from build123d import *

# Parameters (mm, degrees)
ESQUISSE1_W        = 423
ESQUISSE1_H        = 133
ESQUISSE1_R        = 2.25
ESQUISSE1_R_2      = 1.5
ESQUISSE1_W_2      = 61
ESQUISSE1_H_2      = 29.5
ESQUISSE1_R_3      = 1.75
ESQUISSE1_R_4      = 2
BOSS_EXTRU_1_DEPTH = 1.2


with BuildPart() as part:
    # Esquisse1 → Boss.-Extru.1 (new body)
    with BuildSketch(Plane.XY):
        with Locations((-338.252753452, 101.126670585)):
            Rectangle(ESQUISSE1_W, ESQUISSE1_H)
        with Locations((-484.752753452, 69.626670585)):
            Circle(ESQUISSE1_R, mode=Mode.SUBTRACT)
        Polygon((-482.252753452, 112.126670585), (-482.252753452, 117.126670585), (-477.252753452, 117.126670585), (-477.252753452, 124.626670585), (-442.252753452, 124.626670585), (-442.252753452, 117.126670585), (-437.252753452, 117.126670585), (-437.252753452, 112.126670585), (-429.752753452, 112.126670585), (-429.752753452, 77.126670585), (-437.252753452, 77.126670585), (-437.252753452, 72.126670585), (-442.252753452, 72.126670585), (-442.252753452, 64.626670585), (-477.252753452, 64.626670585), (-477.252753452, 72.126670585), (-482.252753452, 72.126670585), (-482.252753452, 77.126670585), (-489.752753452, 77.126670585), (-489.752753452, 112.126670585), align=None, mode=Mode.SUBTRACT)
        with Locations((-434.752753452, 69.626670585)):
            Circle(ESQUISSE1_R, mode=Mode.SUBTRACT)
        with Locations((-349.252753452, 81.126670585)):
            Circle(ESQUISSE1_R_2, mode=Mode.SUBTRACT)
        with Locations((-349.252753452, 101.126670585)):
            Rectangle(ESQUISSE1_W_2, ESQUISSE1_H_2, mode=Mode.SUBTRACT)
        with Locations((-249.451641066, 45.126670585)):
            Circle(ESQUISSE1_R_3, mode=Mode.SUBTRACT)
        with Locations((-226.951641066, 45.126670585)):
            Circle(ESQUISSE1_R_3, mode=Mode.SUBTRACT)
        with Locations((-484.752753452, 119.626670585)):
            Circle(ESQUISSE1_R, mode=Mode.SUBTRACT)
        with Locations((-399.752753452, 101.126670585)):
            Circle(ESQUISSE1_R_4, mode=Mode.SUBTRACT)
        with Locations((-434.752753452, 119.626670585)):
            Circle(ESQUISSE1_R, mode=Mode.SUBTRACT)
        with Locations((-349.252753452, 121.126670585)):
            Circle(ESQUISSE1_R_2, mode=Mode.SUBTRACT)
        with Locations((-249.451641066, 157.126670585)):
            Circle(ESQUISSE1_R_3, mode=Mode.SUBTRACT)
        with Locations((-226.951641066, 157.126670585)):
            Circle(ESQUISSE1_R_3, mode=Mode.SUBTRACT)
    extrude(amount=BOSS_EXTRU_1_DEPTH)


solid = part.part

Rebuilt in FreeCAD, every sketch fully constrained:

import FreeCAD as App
import Part
import Sketcher

V = App.Vector

doc = App.newDocument("Part")
body = doc.addObject("PartDesign::Body", "Body")

# Sketch on XY plane
sketch1 = body.newObject("Sketcher::SketchObject", "Sketch")
sketch1.AttachmentSupport = (doc.getObject("XY_Plane"), [""])
sketch1.MapMode = "FlatFace"
sketch1.addGeometry([
    Part.LineSegment(V(-549.8, 167.6, 0), V(-549.8, 34.6, 0)),  # 0
    Part.LineSegment(V(-549.8, 34.6, 0), V(-126.8, 34.6, 0)),  # 1
    Part.LineSegment(V(-126.8, 34.6, 0), V(-126.8, 167.6, 0)),  # 2
    Part.LineSegment(V(-126.8, 167.6, 0), V(-549.8, 167.6, 0)),  # 3
    Part.Circle(V(-484.8, 69.6, 0), V(0, 0, 1), 2.2),  # 4
    Part.Circle(V(-434.8, 69.6, 0), V(0, 0, 1), 2.2),  # 5
    Part.LineSegment(V(-489.8, 112.1, 0), V(-482.3, 112.1, 0)),  # 6
    Part.LineSegment(V(-482.3, 112.1, 0), V(-482.3, 117.1, 0)),  # 7
    Part.LineSegment(V(-482.3, 117.1, 0), V(-477.3, 117.1, 0)),  # 8
    Part.LineSegment(V(-477.3, 117.1, 0), V(-477.3, 124.6, 0)),  # 9
    Part.LineSegment(V(-477.3, 124.6, 0), V(-442.3, 124.6, 0)),  # 10
    Part.LineSegment(V(-442.3, 124.6, 0), V(-442.3, 117.1, 0)),  # 11
    Part.LineSegment(V(-442.3, 117.1, 0), V(-437.3, 117.1, 0)),  # 12
    Part.LineSegment(V(-437.3, 117.1, 0), V(-437.3, 112.1, 0)),  # 13
    Part.LineSegment(V(-437.3, 112.1, 0), V(-429.8, 112.1, 0)),  # 14
    Part.LineSegment(V(-429.8, 112.1, 0), V(-429.8, 77.1, 0)),  # 15
    Part.LineSegment(V(-429.8, 77.1, 0), V(-437.3, 77.1, 0)),  # 16
    Part.LineSegment(V(-437.3, 77.1, 0), V(-437.3, 72.1, 0)),  # 17
    Part.LineSegment(V(-437.3, 72.1, 0), V(-442.3, 72.1, 0)),  # 18
    Part.LineSegment(V(-442.3, 72.1, 0), V(-442.3, 64.6, 0)),  # 19
    Part.LineSegment(V(-442.3, 64.6, 0), V(-477.3, 64.6, 0)),  # 20
    Part.LineSegment(V(-477.3, 64.6, 0), V(-477.3, 72.1, 0)),  # 21
    Part.LineSegment(V(-477.3, 72.1, 0), V(-482.3, 72.1, 0)),  # 22
    Part.LineSegment(V(-482.3, 72.1, 0), V(-482.3, 77.1, 0)),  # 23
    Part.LineSegment(V(-482.3, 77.1, 0), V(-489.8, 77.1, 0)),  # 24
    Part.LineSegment(V(-489.8, 77.1, 0), V(-489.8, 112.1, 0)),  # 25
    Part.Circle(V(-249.5, 45.1, 0), V(0, 0, 1), 1.8),  # 26
    Part.Circle(V(-227, 45.1, 0), V(0, 0, 1), 1.8),  # 27
    Part.Circle(V(-349.3, 81.1, 0), V(0, 0, 1), 1.5),  # 28
    Part.Circle(V(-484.8, 119.6, 0), V(0, 0, 1), 2.2),  # 29
    Part.Circle(V(-434.8, 119.6, 0), V(0, 0, 1), 2.2),  # 30
    Part.Circle(V(-399.8, 101.1, 0), V(0, 0, 1), 2),  # 31
    Part.LineSegment(V(-318.8, 86.4, 0), V(-379.8, 86.4, 0)),  # 32
    Part.LineSegment(V(-379.8, 86.4, 0), V(-379.8, 115.9, 0)),  # 33
    Part.LineSegment(V(-379.8, 115.9, 0), V(-318.8, 115.9, 0)),  # 34
    Part.LineSegment(V(-318.8, 115.9, 0), V(-318.8, 86.4, 0)),  # 35
    Part.Circle(V(-349.3, 121.1, 0), V(0, 0, 1), 1.5),  # 36
    Part.Circle(V(-249.5, 157.1, 0), V(0, 0, 1), 1.8),  # 37
    Part.Circle(V(-227, 157.1, 0), V(0, 0, 1), 1.8),  # 38
], False)
sketch1.addConstraint([
    Sketcher.Constraint("Coincident", 0, 2, 1, 1),
    Sketcher.Constraint("Coincident", 1, 2, 2, 1),
    Sketcher.Constraint("Coincident", 2, 2, 3, 1),
    Sketcher.Constraint("Coincident", 3, 2, 0, 1),
    Sketcher.Constraint("Coincident", 6, 2, 7, 1),
    Sketcher.Constraint("Coincident", 7, 2, 8, 1),
    Sketcher.Constraint("Coincident", 8, 2, 9, 1),
    Sketcher.Constraint("Coincident", 9, 2, 10, 1),
    Sketcher.Constraint("Coincident", 10, 2, 11, 1),
    Sketcher.Constraint("Coincident", 11, 2, 12, 1),
    Sketcher.Constraint("Coincident", 12, 2, 13, 1),
    Sketcher.Constraint("Coincident", 13, 2, 14, 1),
    Sketcher.Constraint("Coincident", 14, 2, 15, 1),
    Sketcher.Constraint("Coincident", 15, 2, 16, 1),
    Sketcher.Constraint("Coincident", 16, 2, 17, 1),
    Sketcher.Constraint("Coincident", 17, 2, 18, 1),
    Sketcher.Constraint("Coincident", 18, 2, 19, 1),
    Sketcher.Constraint("Coincident", 19, 2, 20, 1),
    Sketcher.Constraint("Coincident", 20, 2, 21, 1),
    Sketcher.Constraint("Coincident", 21, 2, 22, 1),
    Sketcher.Constraint("Coincident", 22, 2, 23, 1),
    Sketcher.Constraint("Coincident", 23, 2, 24, 1),
    Sketcher.Constraint("Coincident", 24, 2, 25, 1),
    Sketcher.Constraint("Coincident", 25, 2, 6, 1),
    Sketcher.Constraint("Coincident", 32, 2, 33, 1),
    Sketcher.Constraint("Coincident", 33, 2, 34, 1),
    Sketcher.Constraint("Coincident", 34, 2, 35, 1),
    Sketcher.Constraint("Coincident", 35, 2, 32, 1),
    Sketcher.Constraint("Vertical", 0),
    Sketcher.Constraint("Horizontal", 1),
    Sketcher.Constraint("Vertical", 2),
    Sketcher.Constraint("Horizontal", 3),
    Sketcher.Constraint("Horizontal", 6),
    Sketcher.Constraint("Vertical", 7),
    Sketcher.Constraint("Horizontal", 8),
    Sketcher.Constraint("Vertical", 9),
    Sketcher.Constraint("Horizontal", 10),
    Sketcher.Constraint("Vertical", 11),
    Sketcher.Constraint("Horizontal", 12),
    Sketcher.Constraint("Vertical", 13),
    Sketcher.Constraint("Horizontal", 14),
    Sketcher.Constraint("Vertical", 15),
    Sketcher.Constraint("Horizontal", 16),
    Sketcher.Constraint("Vertical", 17),
    Sketcher.Constraint("Horizontal", 18),
    Sketcher.Constraint("Vertical", 19),
    Sketcher.Constraint("Horizontal", 20),
    Sketcher.Constraint("Vertical", 21),
    Sketcher.Constraint("Horizontal", 22),
    Sketcher.Constraint("Vertical", 23),
    Sketcher.Constraint("Horizontal", 24),
    Sketcher.Constraint("Vertical", 25),
    Sketcher.Constraint("Horizontal", 32),
    Sketcher.Constraint("Vertical", 33),
    Sketcher.Constraint("Horizontal", 34),
    Sketcher.Constraint("Vertical", 35),
    Sketcher.Constraint("Equal", 4, 5),
    Sketcher.Constraint("Equal", 26, 27),
    Sketcher.Constraint("Equal", 5, 29),
    Sketcher.Constraint("Equal", 29, 30),
    Sketcher.Constraint("Equal", 28, 36),
    Sketcher.Constraint("Equal", 27, 37),
    Sketcher.Constraint("Equal", 37, 38),
    Sketcher.Constraint("Horizontal", 4, 3, 5, 3),
    Sketcher.Constraint("Horizontal", 26, 3, 27, 3),
    Sketcher.Constraint("Horizontal", 29, 3, 30, 3),
    Sketcher.Constraint("Horizontal", 37, 3, 38, 3),
    Sketcher.Constraint("Horizontal", 8, 2, 11, 2),
    Sketcher.Constraint("Horizontal", 6, 2, 13, 2),
    Sketcher.Constraint("Horizontal", 18, 2, 21, 2),
    Sketcher.Constraint("Horizontal", 16, 2, 23, 2),
    Sketcher.Constraint("Vertical", 4, 3, 29, 3),
    Sketcher.Constraint("Vertical", 5, 3, 30, 3),
    Sketcher.Constraint("Vertical", 28, 3, 36, 3),
    Sketcher.Constraint("Vertical", 26, 3, 37, 3),
    Sketcher.Constraint("Vertical", 27, 3, 38, 3),
    Sketcher.Constraint("Vertical", 13, 2, 16, 2),
    Sketcher.Constraint("Vertical", 11, 2, 18, 2),
    Sketcher.Constraint("Vertical", 9, 2, 20, 2),
    Sketcher.Constraint("Vertical", 7, 2, 22, 2),
    Sketcher.Constraint("Equal", 8, 12),
    Sketcher.Constraint("Equal", 6, 14),
    Sketcher.Constraint("Equal", 22, 7),
    Sketcher.Constraint("Equal", 24, 9),
    Sketcher.Constraint("Equal", 20, 15),
    Sketcher.Constraint("Equal", 13, 17),
    Sketcher.Constraint("Equal", 11, 19),
    Sketcher.Constraint("Diameter", 28, 3.0),
    Sketcher.Constraint("Diameter", 31, 4.0),
    Sketcher.Constraint("Diameter", 4, 4.5),
    Sketcher.Constraint("Diameter", 26, 3.5),
    Sketcher.Constraint("DistanceX", 1, 1, 1, 2, 423.0),
    Sketcher.Constraint("DistanceX", 8, 1, 8, 2, 5.0),
    Sketcher.Constraint("DistanceX", 10, 1, 10, 2, 35.0),
    Sketcher.Constraint("DistanceX", 32, 2, 32, 1, 61.0),
    Sketcher.Constraint("DistanceY", 0, 2, 0, 1, 133.0),
    Sketcher.Constraint("DistanceX", 6, 1, 6, 2, 7.5),
    Sketcher.Constraint("DistanceY", 33, 1, 33, 2, 29.5),
    Sketcher.Constraint("DistanceX", 4, 3, 5, 3, 50.0),
    Sketcher.Constraint("DistanceY", 26, 3, 28, 3, 36.0),
    Sketcher.Constraint("DistanceY", 4, 3, 29, 3, 50.0),
    Sketcher.Constraint("DistanceX", 30, 3, 31, 3, 35.0),
    Sketcher.Constraint("DistanceY", 28, 3, 31, 3, 20.0),
    Sketcher.Constraint("DistanceY", 28, 3, 36, 3, 40.0),
    Sketcher.Constraint("DistanceY", 36, 3, 37, 3, 36.0),
    Sketcher.Constraint("DistanceX", 0, 2, 4, 3, 65.0),
    Sketcher.Constraint("DistanceY", 0, 2, 4, 3, 35.0),
    Sketcher.Constraint("DistanceY", 31, 3, 6, 2, 11.0),
    Sketcher.Constraint("DistanceY", 29, 3, 9, 2, 5.0),
    Sketcher.Constraint("DistanceX", 30, 3, 14, 2, 5.0),
    Sketcher.Constraint("DistanceX", 31, 3, 32, 2, 20.0),
    Sketcher.Constraint("DistanceX", 26, 3, 27, 3, 22.5),
    Sketcher.Constraint("DistanceX", 5, 3, 28, 3, 85.5),
    Sketcher.Constraint("DistanceY", 32, 2, 31, 3, 14.75),
    Sketcher.Constraint("DistanceY", -1, 1, 4, 3, 69.626671),
    Sketcher.Constraint("DistanceX", 26, 3, -1, 1, 249.451641),
    Sketcher.Constraint("DistanceX", 4, 3, -1, 1, 484.752753),
])
pad1 = body.newObject("PartDesign::Pad", "Pad")
pad1.Profile = sketch1
pad1.Length = 1.2

doc.recompute()
